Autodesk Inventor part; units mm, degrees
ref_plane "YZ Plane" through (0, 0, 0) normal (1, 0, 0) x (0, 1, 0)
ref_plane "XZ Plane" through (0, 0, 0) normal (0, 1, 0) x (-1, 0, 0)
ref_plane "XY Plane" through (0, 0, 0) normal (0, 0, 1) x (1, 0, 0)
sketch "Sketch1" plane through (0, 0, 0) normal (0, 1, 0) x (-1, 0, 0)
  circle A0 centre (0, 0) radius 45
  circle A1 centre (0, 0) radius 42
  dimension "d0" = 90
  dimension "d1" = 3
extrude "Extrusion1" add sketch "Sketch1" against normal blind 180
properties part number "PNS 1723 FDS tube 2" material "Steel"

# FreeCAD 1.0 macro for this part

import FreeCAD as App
import Part
import Sketcher
Q = App.Units.Quantity

doc = App.newDocument("Part")
params = doc.addObject("Spreadsheet::Sheet", "Params")
for row, (alias, value) in enumerate([
    ("sketch1_diameter", "90 mm"),
    ("sketch1_diameter2", "84 mm"),
    ("pad1_length", "180 mm"),
], start=1):
    params.set(f"A{row}", alias)
    params.set(f"B{row}", "=" + value)
    params.setAlias(f"B{row}", alias)

body = doc.addObject("PartDesign::Body", "Body")

# Sketch on XZ plane
sketch1 = body.newObject("Sketcher::SketchObject", "Sketch")
sketch1.AttachmentSupport = (doc.getObject("XZ_Plane"), [""])
sketch1.MapMode = "FlatFace"
sketch1.addGeometry([
    Part.Circle(App.Vector(0, 0, 0), App.Vector(0, 0, 1), 45),
    Part.Circle(App.Vector(0, 0, 0), App.Vector(0, 0, 1), 42),
], False)
sketch1.addConstraint([
    Sketcher.Constraint("Coincident", 0, 3, -1, 1),
    Sketcher.Constraint("Coincident", 1, 3, -1, 1),
    Sketcher.Constraint("Diameter", 0, Q("90 mm")),
    Sketcher.Constraint("Diameter", 1, Q("84 mm")),
])
sketch1.setExpression("Constraints[2]", "Params.sketch1_diameter")
sketch1.setExpression("Constraints[3]", "Params.sketch1_diameter2")
pad1 = body.newObject("PartDesign::Pad", "Pad")
pad1.Profile = sketch1
pad1.setExpression("Length", "Params.pad1_length")

doc.recompute()
